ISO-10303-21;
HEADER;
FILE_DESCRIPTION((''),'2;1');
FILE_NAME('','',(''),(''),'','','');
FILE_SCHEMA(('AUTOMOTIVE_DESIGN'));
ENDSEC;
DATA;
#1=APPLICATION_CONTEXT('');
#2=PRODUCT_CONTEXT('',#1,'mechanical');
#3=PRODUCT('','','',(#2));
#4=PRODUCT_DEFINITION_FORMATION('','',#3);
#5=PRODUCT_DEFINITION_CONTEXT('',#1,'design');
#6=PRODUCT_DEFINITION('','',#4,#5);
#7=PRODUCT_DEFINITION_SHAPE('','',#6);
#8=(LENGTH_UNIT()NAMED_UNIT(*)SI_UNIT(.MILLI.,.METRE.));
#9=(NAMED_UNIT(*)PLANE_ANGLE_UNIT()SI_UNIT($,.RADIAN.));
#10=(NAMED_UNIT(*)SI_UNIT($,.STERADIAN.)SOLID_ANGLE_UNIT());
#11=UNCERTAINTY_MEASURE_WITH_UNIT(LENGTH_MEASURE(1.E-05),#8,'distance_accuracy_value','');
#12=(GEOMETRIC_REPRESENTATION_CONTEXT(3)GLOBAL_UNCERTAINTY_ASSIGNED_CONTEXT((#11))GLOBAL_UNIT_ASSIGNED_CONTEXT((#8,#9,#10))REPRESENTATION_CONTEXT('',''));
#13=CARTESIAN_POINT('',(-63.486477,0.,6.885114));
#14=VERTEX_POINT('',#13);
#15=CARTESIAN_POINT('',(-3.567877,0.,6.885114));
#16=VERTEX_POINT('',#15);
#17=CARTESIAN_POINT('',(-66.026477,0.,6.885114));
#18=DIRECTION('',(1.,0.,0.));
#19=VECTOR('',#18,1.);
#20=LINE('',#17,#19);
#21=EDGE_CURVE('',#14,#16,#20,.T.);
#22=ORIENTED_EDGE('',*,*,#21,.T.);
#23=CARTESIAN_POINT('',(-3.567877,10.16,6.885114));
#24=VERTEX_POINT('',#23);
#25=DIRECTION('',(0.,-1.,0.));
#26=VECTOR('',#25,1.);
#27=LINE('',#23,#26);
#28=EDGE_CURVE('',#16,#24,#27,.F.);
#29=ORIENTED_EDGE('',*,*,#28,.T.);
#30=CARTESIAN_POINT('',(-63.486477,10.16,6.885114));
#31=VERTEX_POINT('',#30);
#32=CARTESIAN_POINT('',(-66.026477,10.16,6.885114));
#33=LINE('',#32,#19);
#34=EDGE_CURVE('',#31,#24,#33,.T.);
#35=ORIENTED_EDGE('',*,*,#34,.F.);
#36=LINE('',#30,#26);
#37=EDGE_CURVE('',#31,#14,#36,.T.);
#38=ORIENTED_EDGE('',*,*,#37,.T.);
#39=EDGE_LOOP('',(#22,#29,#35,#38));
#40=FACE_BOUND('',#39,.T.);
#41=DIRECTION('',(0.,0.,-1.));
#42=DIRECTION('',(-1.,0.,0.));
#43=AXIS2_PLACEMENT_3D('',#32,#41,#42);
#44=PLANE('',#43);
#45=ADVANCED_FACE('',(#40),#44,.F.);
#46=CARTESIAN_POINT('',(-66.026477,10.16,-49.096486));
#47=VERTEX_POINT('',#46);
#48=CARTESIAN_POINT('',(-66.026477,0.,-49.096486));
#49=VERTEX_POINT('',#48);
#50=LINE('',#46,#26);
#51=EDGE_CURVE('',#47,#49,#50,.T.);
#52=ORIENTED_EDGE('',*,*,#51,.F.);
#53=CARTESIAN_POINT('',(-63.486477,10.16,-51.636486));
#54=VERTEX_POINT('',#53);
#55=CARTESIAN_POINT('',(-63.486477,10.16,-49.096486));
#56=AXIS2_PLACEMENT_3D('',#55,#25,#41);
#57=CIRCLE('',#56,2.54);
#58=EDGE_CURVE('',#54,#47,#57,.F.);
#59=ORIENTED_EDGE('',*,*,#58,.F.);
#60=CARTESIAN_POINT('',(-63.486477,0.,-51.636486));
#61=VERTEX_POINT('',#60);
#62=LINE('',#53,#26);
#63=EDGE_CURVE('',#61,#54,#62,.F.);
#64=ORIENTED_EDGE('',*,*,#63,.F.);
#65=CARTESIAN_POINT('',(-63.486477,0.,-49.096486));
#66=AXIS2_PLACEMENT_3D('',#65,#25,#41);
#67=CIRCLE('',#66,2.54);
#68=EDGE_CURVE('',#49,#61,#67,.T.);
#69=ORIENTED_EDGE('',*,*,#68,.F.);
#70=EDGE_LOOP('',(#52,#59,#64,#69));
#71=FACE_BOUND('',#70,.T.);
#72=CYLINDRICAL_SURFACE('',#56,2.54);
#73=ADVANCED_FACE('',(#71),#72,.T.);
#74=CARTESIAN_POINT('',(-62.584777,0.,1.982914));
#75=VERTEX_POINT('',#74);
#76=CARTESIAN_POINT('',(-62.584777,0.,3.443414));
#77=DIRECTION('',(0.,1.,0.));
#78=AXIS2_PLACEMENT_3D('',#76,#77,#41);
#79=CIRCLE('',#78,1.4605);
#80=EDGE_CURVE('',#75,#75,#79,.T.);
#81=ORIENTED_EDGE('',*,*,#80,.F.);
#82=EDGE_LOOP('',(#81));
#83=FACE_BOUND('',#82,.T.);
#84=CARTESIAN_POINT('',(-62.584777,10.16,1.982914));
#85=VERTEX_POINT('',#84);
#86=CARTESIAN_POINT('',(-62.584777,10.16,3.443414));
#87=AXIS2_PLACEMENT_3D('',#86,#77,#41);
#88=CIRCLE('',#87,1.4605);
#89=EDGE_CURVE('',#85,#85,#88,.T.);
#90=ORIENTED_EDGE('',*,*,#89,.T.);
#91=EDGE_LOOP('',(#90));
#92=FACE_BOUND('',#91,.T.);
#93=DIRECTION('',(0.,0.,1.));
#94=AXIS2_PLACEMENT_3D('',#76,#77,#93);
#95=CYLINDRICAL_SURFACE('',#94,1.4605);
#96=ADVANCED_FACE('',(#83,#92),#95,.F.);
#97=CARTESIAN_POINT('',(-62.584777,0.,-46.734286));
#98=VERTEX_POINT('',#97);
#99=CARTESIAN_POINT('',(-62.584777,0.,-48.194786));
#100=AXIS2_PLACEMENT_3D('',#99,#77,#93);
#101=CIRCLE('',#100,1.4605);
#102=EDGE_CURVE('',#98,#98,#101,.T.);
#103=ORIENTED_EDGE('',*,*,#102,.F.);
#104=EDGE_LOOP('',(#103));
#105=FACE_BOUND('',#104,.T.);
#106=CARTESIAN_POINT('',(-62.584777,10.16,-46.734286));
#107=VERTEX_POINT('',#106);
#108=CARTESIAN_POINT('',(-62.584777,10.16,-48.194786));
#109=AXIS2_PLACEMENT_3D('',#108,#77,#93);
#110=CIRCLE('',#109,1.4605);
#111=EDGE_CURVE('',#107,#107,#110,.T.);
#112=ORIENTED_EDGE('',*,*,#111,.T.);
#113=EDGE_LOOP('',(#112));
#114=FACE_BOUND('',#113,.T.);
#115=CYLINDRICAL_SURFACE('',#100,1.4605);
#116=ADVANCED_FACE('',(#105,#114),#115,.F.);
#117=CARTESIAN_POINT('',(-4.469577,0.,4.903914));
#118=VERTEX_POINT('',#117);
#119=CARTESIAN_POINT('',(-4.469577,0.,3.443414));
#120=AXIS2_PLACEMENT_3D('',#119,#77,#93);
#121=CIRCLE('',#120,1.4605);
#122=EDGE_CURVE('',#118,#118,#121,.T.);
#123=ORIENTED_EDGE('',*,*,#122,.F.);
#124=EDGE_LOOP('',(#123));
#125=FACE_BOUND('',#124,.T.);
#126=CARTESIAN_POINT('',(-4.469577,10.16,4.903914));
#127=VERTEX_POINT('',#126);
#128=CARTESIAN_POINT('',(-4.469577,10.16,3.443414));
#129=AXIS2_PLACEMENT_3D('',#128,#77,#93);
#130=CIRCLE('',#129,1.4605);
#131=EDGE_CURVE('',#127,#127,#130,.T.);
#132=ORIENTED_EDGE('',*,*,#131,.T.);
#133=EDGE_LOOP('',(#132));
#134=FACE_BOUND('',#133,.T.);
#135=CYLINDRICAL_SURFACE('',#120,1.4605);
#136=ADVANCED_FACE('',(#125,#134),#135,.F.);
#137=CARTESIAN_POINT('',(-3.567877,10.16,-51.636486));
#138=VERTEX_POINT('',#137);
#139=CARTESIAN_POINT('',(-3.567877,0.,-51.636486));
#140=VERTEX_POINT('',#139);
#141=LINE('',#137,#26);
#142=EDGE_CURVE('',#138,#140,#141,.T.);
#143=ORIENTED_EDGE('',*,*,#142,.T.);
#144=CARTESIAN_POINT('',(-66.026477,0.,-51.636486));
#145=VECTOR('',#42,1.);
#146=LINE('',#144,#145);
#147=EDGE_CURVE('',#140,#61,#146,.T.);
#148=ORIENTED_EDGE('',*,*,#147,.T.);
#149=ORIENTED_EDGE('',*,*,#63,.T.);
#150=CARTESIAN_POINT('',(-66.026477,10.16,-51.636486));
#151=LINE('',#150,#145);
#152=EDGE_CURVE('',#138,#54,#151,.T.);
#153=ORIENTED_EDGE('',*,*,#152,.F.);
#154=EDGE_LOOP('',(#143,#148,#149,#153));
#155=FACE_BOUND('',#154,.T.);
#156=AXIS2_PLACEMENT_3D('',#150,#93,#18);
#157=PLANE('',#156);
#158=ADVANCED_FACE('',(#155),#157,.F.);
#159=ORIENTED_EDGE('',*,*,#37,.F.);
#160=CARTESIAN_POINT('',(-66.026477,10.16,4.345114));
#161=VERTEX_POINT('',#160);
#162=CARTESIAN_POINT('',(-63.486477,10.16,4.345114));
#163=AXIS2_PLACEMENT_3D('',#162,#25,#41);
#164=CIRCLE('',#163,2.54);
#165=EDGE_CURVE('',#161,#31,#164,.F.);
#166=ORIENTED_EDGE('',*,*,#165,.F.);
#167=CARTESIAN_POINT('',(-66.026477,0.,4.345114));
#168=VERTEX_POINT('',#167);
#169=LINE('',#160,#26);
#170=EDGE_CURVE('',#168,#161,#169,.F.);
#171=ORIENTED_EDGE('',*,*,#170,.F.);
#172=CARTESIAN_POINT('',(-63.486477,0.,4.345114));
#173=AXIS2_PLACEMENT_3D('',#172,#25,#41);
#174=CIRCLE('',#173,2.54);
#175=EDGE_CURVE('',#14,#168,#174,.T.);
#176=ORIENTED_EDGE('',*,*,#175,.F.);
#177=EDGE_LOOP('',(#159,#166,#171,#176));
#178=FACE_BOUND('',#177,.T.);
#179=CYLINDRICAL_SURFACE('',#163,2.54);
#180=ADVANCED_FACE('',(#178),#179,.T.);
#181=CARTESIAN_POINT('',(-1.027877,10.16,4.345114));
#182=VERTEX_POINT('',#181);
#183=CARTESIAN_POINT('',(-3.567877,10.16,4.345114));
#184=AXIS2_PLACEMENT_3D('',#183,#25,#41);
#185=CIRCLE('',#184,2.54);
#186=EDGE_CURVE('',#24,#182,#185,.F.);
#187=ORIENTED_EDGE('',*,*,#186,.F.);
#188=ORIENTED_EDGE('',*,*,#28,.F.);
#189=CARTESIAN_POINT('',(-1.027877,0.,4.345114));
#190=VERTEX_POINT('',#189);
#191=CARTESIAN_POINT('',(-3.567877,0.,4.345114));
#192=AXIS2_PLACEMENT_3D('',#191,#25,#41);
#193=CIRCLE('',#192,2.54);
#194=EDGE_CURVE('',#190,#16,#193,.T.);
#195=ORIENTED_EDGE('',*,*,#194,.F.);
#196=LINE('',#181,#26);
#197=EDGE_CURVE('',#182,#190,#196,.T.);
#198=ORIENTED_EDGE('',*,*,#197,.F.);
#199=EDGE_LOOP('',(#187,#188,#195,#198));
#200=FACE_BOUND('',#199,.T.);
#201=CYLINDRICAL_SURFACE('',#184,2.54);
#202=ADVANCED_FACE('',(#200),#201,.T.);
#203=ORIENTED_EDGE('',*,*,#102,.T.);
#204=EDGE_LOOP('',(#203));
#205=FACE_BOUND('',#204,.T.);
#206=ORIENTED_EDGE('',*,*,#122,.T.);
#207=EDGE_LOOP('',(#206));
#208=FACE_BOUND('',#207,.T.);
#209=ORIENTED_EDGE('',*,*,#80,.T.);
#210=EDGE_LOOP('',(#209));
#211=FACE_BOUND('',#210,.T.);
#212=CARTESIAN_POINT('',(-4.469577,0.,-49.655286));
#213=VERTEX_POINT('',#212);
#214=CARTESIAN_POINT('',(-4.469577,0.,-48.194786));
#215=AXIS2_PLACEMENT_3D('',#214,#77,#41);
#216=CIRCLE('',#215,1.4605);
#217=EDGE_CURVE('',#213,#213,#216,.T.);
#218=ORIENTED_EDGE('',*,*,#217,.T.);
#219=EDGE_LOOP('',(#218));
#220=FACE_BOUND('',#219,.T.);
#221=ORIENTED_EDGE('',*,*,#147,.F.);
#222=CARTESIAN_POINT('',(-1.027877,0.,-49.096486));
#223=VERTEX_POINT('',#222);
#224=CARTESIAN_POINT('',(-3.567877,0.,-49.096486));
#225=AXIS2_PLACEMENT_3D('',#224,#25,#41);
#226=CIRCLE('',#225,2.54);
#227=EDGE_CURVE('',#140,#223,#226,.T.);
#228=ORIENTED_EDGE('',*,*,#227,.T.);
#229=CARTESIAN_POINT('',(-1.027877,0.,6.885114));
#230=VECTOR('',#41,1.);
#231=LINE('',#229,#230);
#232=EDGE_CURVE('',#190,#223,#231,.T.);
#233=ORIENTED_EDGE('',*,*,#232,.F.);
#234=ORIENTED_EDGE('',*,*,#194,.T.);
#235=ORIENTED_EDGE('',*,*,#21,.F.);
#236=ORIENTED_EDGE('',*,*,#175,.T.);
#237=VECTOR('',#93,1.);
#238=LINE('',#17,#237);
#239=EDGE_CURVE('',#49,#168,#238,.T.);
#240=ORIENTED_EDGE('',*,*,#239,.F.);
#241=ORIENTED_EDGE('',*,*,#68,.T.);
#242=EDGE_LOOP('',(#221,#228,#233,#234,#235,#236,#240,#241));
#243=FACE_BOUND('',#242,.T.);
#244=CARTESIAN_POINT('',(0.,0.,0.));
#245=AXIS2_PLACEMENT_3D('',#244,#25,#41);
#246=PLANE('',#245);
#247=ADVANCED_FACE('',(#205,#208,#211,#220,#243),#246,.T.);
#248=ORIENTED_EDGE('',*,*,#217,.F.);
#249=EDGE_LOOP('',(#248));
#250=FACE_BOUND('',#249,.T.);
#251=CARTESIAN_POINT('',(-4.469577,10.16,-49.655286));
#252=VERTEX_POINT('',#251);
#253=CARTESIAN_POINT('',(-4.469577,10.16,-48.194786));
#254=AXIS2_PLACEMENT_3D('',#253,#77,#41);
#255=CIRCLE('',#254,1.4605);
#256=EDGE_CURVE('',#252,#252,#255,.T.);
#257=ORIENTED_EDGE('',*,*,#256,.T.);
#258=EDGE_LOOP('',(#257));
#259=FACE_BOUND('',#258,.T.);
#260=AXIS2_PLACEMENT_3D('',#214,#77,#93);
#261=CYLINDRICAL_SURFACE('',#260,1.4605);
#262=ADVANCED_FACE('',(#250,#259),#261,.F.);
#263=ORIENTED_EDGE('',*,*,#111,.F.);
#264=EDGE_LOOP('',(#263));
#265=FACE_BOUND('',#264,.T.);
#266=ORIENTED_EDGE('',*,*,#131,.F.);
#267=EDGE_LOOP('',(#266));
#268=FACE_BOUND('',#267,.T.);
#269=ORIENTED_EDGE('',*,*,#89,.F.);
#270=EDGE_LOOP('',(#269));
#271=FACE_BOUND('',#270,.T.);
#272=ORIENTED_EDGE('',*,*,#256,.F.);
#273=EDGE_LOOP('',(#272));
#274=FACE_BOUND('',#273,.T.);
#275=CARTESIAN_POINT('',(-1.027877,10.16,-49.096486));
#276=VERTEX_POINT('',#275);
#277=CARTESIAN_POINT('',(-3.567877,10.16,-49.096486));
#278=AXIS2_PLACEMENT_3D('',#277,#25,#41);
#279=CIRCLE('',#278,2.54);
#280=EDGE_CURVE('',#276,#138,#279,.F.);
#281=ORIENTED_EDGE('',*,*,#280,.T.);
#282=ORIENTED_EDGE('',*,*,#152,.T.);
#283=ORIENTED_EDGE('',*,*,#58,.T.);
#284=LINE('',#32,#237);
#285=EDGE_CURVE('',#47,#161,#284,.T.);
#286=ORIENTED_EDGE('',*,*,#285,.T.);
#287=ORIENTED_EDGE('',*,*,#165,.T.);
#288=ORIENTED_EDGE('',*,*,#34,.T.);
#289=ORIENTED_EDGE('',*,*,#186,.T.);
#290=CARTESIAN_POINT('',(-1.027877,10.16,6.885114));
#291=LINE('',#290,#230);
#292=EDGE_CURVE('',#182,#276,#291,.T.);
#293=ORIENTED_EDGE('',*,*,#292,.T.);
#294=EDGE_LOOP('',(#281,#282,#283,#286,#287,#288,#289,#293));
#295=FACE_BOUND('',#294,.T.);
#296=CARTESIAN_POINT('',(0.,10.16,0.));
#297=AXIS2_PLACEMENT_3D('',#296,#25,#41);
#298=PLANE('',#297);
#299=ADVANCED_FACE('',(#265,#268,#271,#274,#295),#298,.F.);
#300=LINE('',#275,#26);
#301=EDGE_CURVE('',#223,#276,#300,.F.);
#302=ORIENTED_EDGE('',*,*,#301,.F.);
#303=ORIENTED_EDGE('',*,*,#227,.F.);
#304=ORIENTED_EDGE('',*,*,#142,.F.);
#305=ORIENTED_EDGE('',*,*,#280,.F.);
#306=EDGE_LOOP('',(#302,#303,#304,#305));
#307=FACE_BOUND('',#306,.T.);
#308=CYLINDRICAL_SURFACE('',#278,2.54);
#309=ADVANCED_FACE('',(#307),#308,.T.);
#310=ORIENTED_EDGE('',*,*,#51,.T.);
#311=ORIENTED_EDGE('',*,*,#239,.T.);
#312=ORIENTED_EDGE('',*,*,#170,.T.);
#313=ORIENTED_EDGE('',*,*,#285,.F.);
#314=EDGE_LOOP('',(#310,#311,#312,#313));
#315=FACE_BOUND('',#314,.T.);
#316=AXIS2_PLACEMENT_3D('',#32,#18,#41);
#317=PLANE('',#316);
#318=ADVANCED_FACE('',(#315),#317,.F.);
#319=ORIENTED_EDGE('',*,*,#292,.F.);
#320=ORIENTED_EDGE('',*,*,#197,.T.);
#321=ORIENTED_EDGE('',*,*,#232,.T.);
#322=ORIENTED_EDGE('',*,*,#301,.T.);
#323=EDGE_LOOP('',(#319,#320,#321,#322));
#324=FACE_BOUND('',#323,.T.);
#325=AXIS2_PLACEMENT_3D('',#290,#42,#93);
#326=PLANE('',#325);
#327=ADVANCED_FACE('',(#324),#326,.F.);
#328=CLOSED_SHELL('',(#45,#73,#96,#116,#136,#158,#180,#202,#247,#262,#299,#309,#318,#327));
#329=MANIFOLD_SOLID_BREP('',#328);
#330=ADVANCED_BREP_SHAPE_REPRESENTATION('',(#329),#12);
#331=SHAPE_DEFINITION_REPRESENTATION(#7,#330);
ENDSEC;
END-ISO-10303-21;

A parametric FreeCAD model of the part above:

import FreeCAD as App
import Part
import Sketcher
from FreeCAD import Vector
Q = App.Units.Quantity


def edges_at(feature, points):
    """Names of the edges that pass closest to the given points."""
    edges = feature.Shape.Edges
    near = lambda p: min(range(len(edges)), key=lambda i: edges[i].distToShape(Part.Vertex(*p))[0])
    return sorted({f"Edge{near(p) + 1}" for p in points})


def add_polygon(sketch, points):
    """Adds a closed chain of lines whose ends are joined by coincident constraints."""
    first, n = sketch.GeometryCount, len(points)
    for a, b in zip(points, points[1:] + points[:1]):
        sketch.addGeometry(Part.LineSegment(App.Vector(*a, 0), App.Vector(*b, 0)), False)
    for i in range(n):
        sketch.addConstraint(Sketcher.Constraint("Coincident", first + i, 2, first + (i + 1) % n, 1))

doc = App.newDocument("Part")
params = doc.addObject("Spreadsheet::Sheet", "Params")
for row, (alias, value) in enumerate([
    ("sketch1_width", "2.559 in"),
    ("sketch1_height", "2.304 in"),
    ("pad1_length", "0.4 in"),
    ("sketch2_diameter", "0.115 in"),
    ("pocket1_length", "0.4 in"),
    ("fillet_radius", "0.1 in"),
], start=1):
    params.set(f"A{row}", alias)
    params.set(f"B{row}", "=" + value)
    params.setAlias(f"B{row}", alias)

body = doc.addObject("PartDesign::Body", "Body")

sketch1 = doc.addObject("Sketcher::SketchObject", "Sketch")
body.addObject(sketch1)
sketch1.AttachmentSupport = (doc.XZ_Plane, [""])
sketch1.MapMode = "FlatFace"
add_polygon(sketch1, [(-66, -52), (-66, 7), (-1, 7), (-1, -52)])
sketch1.addConstraint([
    Sketcher.Constraint("Vertical", 0),
    Sketcher.Constraint("Horizontal", 1),
    Sketcher.Constraint("Vertical", 2),
    Sketcher.Constraint("Horizontal", 3),
    Sketcher.Constraint("DistanceX", 1, 1, 1, 2, Q("2.559 in")),
    Sketcher.Constraint("DistanceY", 0, 1, 0, 2, Q("2.304 in")),
    Sketcher.Constraint("DistanceX", 0, 2, -1, 1, 66.026477),
    Sketcher.Constraint("DistanceY", -1, 1, 0, 2, 6.885114),
])
sketch1.setExpression("Constraints[8]", "Params.sketch1_width")
sketch1.setExpression("Constraints[9]", "Params.sketch1_height")
pad1 = doc.addObject("PartDesign::Pad", "Pad")
body.addObject(pad1)
pad1.Profile = sketch1
pad1.setExpression("Length", "Params.pad1_length")
pad1.Reversed = True

sketch2 = doc.addObject("Sketcher::SketchObject", "Sketch001")
body.addObject(sketch2)
sketch2.AttachmentSupport = (doc.XZ_Plane, [""])
sketch2.MapMode = "FlatFace"
sketch2.AttachmentOffset = App.Placement(Vector(0, 0, -0.4 * 25.4), App.Rotation())
sketch2.addGeometry([
    Part.Circle(Vector(-4.5, 3.4, 0), Vector(0, 0, 1), 1.5),
    Part.Circle(Vector(-4.5, -48.2, 0), Vector(0, 0, 1), 1.5),
    Part.Circle(Vector(-62.6, -48.2, 0), Vector(0, 0, 1), 1.5),
    Part.Circle(Vector(-62.6, 3.4, 0), Vector(0, 0, 1), 1.5),
], False)
sketch2.addConstraint([
    Sketcher.Constraint("Equal", 0, 1),
    Sketcher.Constraint("Equal", 1, 2),
    Sketcher.Constraint("Equal", 2, 3),
    Sketcher.Constraint("Horizontal", 1, 3, 2, 3),
    Sketcher.Constraint("Horizontal", 0, 3, 3, 3),
    Sketcher.Constraint("Vertical", 0, 3, 1, 3),
    Sketcher.Constraint("Vertical", 2, 3, 3, 3),
    Sketcher.Constraint("Diameter", 0, Q("0.115 in")),
    Sketcher.Constraint("DistanceY", 1, 3, 0, 3, Q("2.033 in")),
    Sketcher.Constraint("DistanceX", 2, 3, 1, 3, Q("2.288 in")),
    Sketcher.Constraint("DistanceX", 0, 3, -1, 1, 4.469577),
    Sketcher.Constraint("DistanceY", -1, 1, 0, 3, 3.443414),
])
sketch2.setExpression("Constraints[7]", "Params.sketch2_diameter")
pocket1 = doc.addObject("PartDesign::Pocket", "Pocket")
body.addObject(pocket1)
pocket1.Profile = sketch2
pocket1.setExpression("Length", "Params.pocket1_length")
pocket1.Reversed = True
doc.recompute()

fillet = doc.addObject("PartDesign::Fillet", "Fillet")
body.addObject(fillet)
fillet.Base = (pocket1, edges_at(pocket1, [
    (-66.026, 5.08, -51.636),
    (-1.028, 5.08, -51.636),
    (-1.028, 5.08, 6.885),
    (-66.026, 5.08, 6.885),
]))
fillet.setExpression("Radius", "Params.fillet_radius")

doc.recompute()
